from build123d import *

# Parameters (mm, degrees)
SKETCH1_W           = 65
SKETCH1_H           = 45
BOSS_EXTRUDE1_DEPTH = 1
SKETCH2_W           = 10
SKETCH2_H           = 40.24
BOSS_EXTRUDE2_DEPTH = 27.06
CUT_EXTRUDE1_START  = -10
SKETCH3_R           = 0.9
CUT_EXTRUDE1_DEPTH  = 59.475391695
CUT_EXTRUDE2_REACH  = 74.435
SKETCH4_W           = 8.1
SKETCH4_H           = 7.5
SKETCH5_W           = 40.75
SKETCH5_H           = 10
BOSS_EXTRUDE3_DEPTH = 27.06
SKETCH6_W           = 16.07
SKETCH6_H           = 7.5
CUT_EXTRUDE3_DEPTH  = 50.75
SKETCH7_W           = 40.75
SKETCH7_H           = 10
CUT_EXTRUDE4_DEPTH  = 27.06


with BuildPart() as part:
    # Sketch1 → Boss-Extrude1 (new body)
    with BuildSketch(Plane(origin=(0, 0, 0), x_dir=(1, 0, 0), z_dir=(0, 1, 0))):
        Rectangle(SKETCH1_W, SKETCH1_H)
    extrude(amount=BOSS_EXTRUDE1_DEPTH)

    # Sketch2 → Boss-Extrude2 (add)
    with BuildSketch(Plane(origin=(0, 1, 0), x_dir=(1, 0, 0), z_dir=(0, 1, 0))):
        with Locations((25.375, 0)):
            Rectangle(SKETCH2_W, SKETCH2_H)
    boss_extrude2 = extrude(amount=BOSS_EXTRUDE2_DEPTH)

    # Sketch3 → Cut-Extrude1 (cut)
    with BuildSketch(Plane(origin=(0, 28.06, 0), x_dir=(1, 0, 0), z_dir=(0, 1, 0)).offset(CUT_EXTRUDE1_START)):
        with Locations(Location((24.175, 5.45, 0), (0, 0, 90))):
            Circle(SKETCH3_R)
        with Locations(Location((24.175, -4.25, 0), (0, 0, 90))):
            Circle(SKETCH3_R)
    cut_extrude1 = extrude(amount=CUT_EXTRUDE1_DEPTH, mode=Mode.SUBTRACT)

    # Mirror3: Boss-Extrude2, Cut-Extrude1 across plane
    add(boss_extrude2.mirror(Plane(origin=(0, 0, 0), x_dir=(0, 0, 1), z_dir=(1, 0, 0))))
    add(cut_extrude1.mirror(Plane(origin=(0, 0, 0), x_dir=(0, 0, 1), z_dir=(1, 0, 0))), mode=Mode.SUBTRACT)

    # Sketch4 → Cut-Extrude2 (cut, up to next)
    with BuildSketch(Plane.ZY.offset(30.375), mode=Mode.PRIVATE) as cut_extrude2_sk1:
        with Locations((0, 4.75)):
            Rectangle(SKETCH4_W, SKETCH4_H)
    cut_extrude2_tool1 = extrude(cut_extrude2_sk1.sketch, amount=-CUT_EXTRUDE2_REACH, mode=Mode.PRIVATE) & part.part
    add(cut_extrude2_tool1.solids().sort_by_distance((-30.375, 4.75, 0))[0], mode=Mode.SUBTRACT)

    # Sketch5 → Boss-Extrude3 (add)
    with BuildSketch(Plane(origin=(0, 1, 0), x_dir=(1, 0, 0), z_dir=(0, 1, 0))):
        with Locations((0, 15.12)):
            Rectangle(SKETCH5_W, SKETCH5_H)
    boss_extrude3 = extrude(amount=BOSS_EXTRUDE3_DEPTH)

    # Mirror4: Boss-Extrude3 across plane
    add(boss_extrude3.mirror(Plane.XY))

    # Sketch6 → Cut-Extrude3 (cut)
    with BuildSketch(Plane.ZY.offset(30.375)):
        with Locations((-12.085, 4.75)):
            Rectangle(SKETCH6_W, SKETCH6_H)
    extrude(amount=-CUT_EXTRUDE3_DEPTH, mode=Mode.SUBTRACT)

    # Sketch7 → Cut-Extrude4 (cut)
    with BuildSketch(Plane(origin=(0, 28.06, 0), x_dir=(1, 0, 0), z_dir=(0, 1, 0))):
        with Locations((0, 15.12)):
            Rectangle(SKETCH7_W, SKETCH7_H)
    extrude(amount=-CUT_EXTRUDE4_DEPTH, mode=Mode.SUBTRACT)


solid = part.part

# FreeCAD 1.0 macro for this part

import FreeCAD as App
import Part
import Sketcher

doc = App.newDocument("Part")
body = doc.addObject("PartDesign::Body", "Body")

sketch1 = doc.addObject("Sketcher::SketchObject", "Sketch")
body.addObject(sketch1)
sketch1.AttachmentSupport = (doc.XZ_Plane, [""])
sketch1.MapMode = "FlatFace"
sketch1.addGeometry(Part.LineSegment(App.Vector(-32, -22, 0), App.Vector(-32, 22, 0)), False)
sketch1.addGeometry(Part.LineSegment(App.Vector(-32, 22, 0), App.Vector(32, 22, 0)), False)
sketch1.addGeometry(Part.LineSegment(App.Vector(32, 22, 0), App.Vector(32, -22, 0)), False)
sketch1.addGeometry(Part.LineSegment(App.Vector(32, -22, 0), App.Vector(-32, -22, 0)), False)
sketch1.addConstraint(Sketcher.Constraint("Coincident", 0, 2, 1, 1))
sketch1.addConstraint(Sketcher.Constraint("Coincident", 1, 2, 2, 1))
sketch1.addConstraint(Sketcher.Constraint("Coincident", 2, 2, 3, 1))
sketch1.addConstraint(Sketcher.Constraint("Coincident", 3, 2, 0, 1))
sketch1.addConstraint(Sketcher.Constraint("Vertical", 0))
sketch1.addConstraint(Sketcher.Constraint("Horizontal", 1))
sketch1.addConstraint(Sketcher.Constraint("Vertical", 2))
sketch1.addConstraint(Sketcher.Constraint("Horizontal", 3))
sketch1.addConstraint(Sketcher.Constraint("Symmetric", 0, 2, 2, 2, -1, 1))
sketch1.addConstraint(Sketcher.Constraint("DistanceX", 1, 1, 1, 2, 65.0))
sketch1.addConstraint(Sketcher.Constraint("DistanceY", 0, 1, 0, 2, 45.0))
pad1 = doc.addObject("PartDesign::Pad", "Pad")
body.addObject(pad1)
pad1.Profile = sketch1
pad1.Length = 1
pad1.Reversed = True

sketch2 = doc.addObject("Sketcher::SketchObject", "Sketch001")
body.addObject(sketch2)
sketch2.AttachmentSupport = (doc.XZ_Plane, [""])
sketch2.MapMode = "FlatFace"
sketch2.AttachmentOffset = App.Placement(App.Vector(0, 0, -1), App.Rotation())
sketch2.addGeometry(Part.LineSegment(App.Vector(20, -20, 0), App.Vector(20, 20, 0)), False)
sketch2.addGeometry(Part.LineSegment(App.Vector(20, 20, 0), App.Vector(30, 20, 0)), False)
sketch2.addGeometry(Part.LineSegment(App.Vector(30, 20, 0), App.Vector(30, -20, 0)), False)
sketch2.addGeometry(Part.LineSegment(App.Vector(30, -20, 0), App.Vector(20, -20, 0)), False)
sketch2.addConstraint(Sketcher.Constraint("Coincident", 0, 2, 1, 1))
sketch2.addConstraint(Sketcher.Constraint("Coincident", 1, 2, 2, 1))
sketch2.addConstraint(Sketcher.Constraint("Coincident", 2, 2, 3, 1))
sketch2.addConstraint(Sketcher.Constraint("Coincident", 3, 2, 0, 1))
sketch2.addConstraint(Sketcher.Constraint("Vertical", 0))
sketch2.addConstraint(Sketcher.Constraint("Horizontal", 1))
sketch2.addConstraint(Sketcher.Constraint("Vertical", 2))
sketch2.addConstraint(Sketcher.Constraint("Horizontal", 3))
sketch2.addConstraint(Sketcher.Constraint("DistanceX", 1, 1, 1, 2, 10.0))
sketch2.addConstraint(Sketcher.Constraint("DistanceY", 0, 1, 0, 2, 40.24))
sketch2.addConstraint(Sketcher.Constraint("DistanceY", -1, 1, 0, 2, 20.12))
sketch2.addConstraint(Sketcher.Constraint("DistanceX", -1, 1, 0, 2, 20.375))
pad2 = doc.addObject("PartDesign::Pad", "Pad001")
body.addObject(pad2)
pad2.Profile = sketch2
pad2.Length = 27.06
pad2.Reversed = True

sketch3 = doc.addObject("Sketcher::SketchObject", "Sketch002")
body.addObject(sketch3)
sketch3.AttachmentSupport = (doc.XZ_Plane, [""])
sketch3.MapMode = "FlatFace"
sketch3.AttachmentOffset = App.Placement(App.Vector(0, 0, -18.06), App.Rotation())
sketch3.addGeometry(Part.Circle(App.Vector(24.2, -5.5, 0), App.Vector(0, 0, 1), 0.9), False)
sketch3.addGeometry(Part.Circle(App.Vector(24.2, 4.2, 0), App.Vector(0, 0, 1), 0.9), False)
sketch3.addConstraint(Sketcher.Constraint("Equal", 0, 1))
sketch3.addConstraint(Sketcher.Constraint("Vertical", 0, 3, 1, 3))
sketch3.addConstraint(Sketcher.Constraint("Diameter", 0, 1.8))
sketch3.addConstraint(Sketcher.Constraint("DistanceY", 0, 3, 1, 3, 9.7))
sketch3.addConstraint(Sketcher.Constraint("DistanceY", 0, 3, -1, 1, 5.45))
sketch3.addConstraint(Sketcher.Constraint("DistanceX", -1, 1, 0, 3, 24.175))
pocket1 = doc.addObject("PartDesign::Pocket", "Pocket")
body.addObject(pocket1)
pocket1.Profile = sketch3
pocket1.Length = 59.475392
doc.recompute()

mirrored = doc.addObject("PartDesign::Mirrored", "Mirrored")
body.addObject(mirrored)
mirrored.Originals = [pad2, pocket1]
mirrored.MirrorPlane = (doc.YZ_Plane, [""])
body.Tip = mirrored

sketch4 = doc.addObject("Sketcher::SketchObject", "Sketch003")
body.addObject(sketch4)
sketch4.AttachmentSupport = (doc.YZ_Plane, [""])
sketch4.MapMode = "FlatFace"
sketch4.AttachmentOffset = App.Placement(App.Vector(0, 0, -30.375), App.Rotation())
sketch4.addGeometry(Part.LineSegment(App.Vector(8, -4, 0), App.Vector(1, -4, 0)), False)
sketch4.addGeometry(Part.LineSegment(App.Vector(1, -4, 0), App.Vector(1, 4, 0)), False)
sketch4.addGeometry(Part.LineSegment(App.Vector(1, 4, 0), App.Vector(8, 4, 0)), False)
sketch4.addGeometry(Part.LineSegment(App.Vector(8, 4, 0), App.Vector(8, -4, 0)), False)
sketch4.addConstraint(Sketcher.Constraint("Coincident", 0, 2, 1, 1))
sketch4.addConstraint(Sketcher.Constraint("Coincident", 1, 2, 2, 1))
sketch4.addConstraint(Sketcher.Constraint("Coincident", 2, 2, 3, 1))
sketch4.addConstraint(Sketcher.Constraint("Coincident", 3, 2, 0, 1))
sketch4.addConstraint(Sketcher.Constraint("Horizontal", 0))
sketch4.addConstraint(Sketcher.Constraint("Vertical", 1))
sketch4.addConstraint(Sketcher.Constraint("Horizontal", 2))
sketch4.addConstraint(Sketcher.Constraint("Vertical", 3))
sketch4.addConstraint(Sketcher.Constraint("DistanceX", 0, 2, 0, 1, 7.5))
sketch4.addConstraint(Sketcher.Constraint("DistanceY", 1, 1, 1, 2, 8.1))
sketch4.addConstraint(Sketcher.Constraint("DistanceX", -1, 1, 0, 2, 1.0))
sketch4.addConstraint(Sketcher.Constraint("DistanceY", 0, 2, -1, 1, 4.05))
pocket2 = doc.addObject("PartDesign::Pocket", "Pocket001")
body.addObject(pocket2)
pocket2.Profile = sketch4
pocket2.Type = "UpToFirst"
pocket2.Reversed = True

sketch5 = doc.addObject("Sketcher::SketchObject", "Sketch004")
body.addObject(sketch5)
sketch5.AttachmentSupport = (doc.XZ_Plane, [""])
sketch5.MapMode = "FlatFace"
sketch5.AttachmentOffset = App.Placement(App.Vector(0, 0, -1), App.Rotation())
sketch5.addGeometry(Part.LineSegment(App.Vector(-20, -20, 0), App.Vector(-20, -10, 0)), False)
sketch5.addGeometry(Part.LineSegment(App.Vector(-20, -10, 0), App.Vector(20, -10, 0)), False)
sketch5.addGeometry(Part.LineSegment(App.Vector(20, -10, 0), App.Vector(20, -20, 0)), False)
sketch5.addGeometry(Part.LineSegment(App.Vector(20, -20, 0), App.Vector(-20, -20, 0)), False)
sketch5.addConstraint(Sketcher.Constraint("Coincident", 0, 2, 1, 1))
sketch5.addConstraint(Sketcher.Constraint("Coincident", 1, 2, 2, 1))
sketch5.addConstraint(Sketcher.Constraint("Coincident", 2, 2, 3, 1))
sketch5.addConstraint(Sketcher.Constraint("Coincident", 3, 2, 0, 1))
sketch5.addConstraint(Sketcher.Constraint("Vertical", 0))
sketch5.addConstraint(Sketcher.Constraint("Horizontal", 1))
sketch5.addConstraint(Sketcher.Constraint("Vertical", 2))
sketch5.addConstraint(Sketcher.Constraint("Horizontal", 3))
sketch5.addConstraint(Sketcher.Constraint("DistanceY", 0, 1, 0, 2, 10.0))
sketch5.addConstraint(Sketcher.Constraint("DistanceX", 1, 1, 1, 2, 40.75))
sketch5.addConstraint(Sketcher.Constraint("DistanceY", 0, 2, -1, 1, 10.12))
sketch5.addConstraint(Sketcher.Constraint("DistanceX", 0, 2, -1, 1, 20.375))
pad3 = doc.addObject("PartDesign::Pad", "Pad002")
body.addObject(pad3)
pad3.Profile = sketch5
pad3.Length = 27.06
pad3.Reversed = True
doc.recompute()

mirrored2 = doc.addObject("PartDesign::Mirrored", "Mirrored001")
body.addObject(mirrored2)
mirrored2.Originals = [pad3]
mirrored2.MirrorPlane = (doc.XY_Plane, [""])
body.Tip = mirrored2

sketch6 = doc.addObject("Sketcher::SketchObject", "Sketch005")
body.addObject(sketch6)
sketch6.AttachmentSupport = (doc.YZ_Plane, [""])
sketch6.MapMode = "FlatFace"
sketch6.AttachmentOffset = App.Placement(App.Vector(0, 0, -30.375), App.Rotation())
sketch6.addGeometry(Part.LineSegment(App.Vector(8, -20, 0), App.Vector(1, -20, 0)), False)
sketch6.addGeometry(Part.LineSegment(App.Vector(1, -20, 0), App.Vector(1, -4, 0)), False)
sketch6.addGeometry(Part.LineSegment(App.Vector(1, -4, 0), App.Vector(8, -4, 0)), False)
sketch6.addGeometry(Part.LineSegment(App.Vector(8, -4, 0), App.Vector(8, -20, 0)), False)
sketch6.addConstraint(Sketcher.Constraint("Coincident", 0, 2, 1, 1))
sketch6.addConstraint(Sketcher.Constraint("Coincident", 1, 2, 2, 1))
sketch6.addConstraint(Sketcher.Constraint("Coincident", 2, 2, 3, 1))
sketch6.addConstraint(Sketcher.Constraint("Coincident", 3, 2, 0, 1))
sketch6.addConstraint(Sketcher.Constraint("Horizontal", 0))
sketch6.addConstraint(Sketcher.Constraint("Vertical", 1))
sketch6.addConstraint(Sketcher.Constraint("Horizontal", 2))
sketch6.addConstraint(Sketcher.Constraint("Vertical", 3))
sketch6.addConstraint(Sketcher.Constraint("DistanceX", 0, 2, 0, 1, 7.5))
sketch6.addConstraint(Sketcher.Constraint("DistanceX", -1, 1, 0, 2, 1.0))
sketch6.addConstraint(Sketcher.Constraint("DistanceY", 1, 1, 1, 2, 16.07))
sketch6.addConstraint(Sketcher.Constraint("DistanceY", 0, 2, -1, 1, 20.12))
pocket3 = doc.addObject("PartDesign::Pocket", "Pocket002")
body.addObject(pocket3)
pocket3.Profile = sketch6
pocket3.Length = 50.75
pocket3.Reversed = True

sketch7 = doc.addObject("Sketcher::SketchObject", "Sketch006")
body.addObject(sketch7)
sketch7.AttachmentSupport = (doc.XZ_Plane, [""])
sketch7.MapMode = "FlatFace"
sketch7.AttachmentOffset = App.Placement(App.Vector(0, 0, -28.06), App.Rotation())
sketch7.addGeometry(Part.LineSegment(App.Vector(-20, -20, 0), App.Vector(-20, -10, 0)), False)
sketch7.addGeometry(Part.LineSegment(App.Vector(-20, -10, 0), App.Vector(20, -10, 0)), False)
sketch7.addGeometry(Part.LineSegment(App.Vector(20, -10, 0), App.Vector(20, -20, 0)), False)
sketch7.addGeometry(Part.LineSegment(App.Vector(20, -20, 0), App.Vector(-20, -20, 0)), False)
sketch7.addConstraint(Sketcher.Constraint("Coincident", 0, 2, 1, 1))
sketch7.addConstraint(Sketcher.Constraint("Coincident", 1, 2, 2, 1))
sketch7.addConstraint(Sketcher.Constraint("Coincident", 2, 2, 3, 1))
sketch7.addConstraint(Sketcher.Constraint("Coincident", 3, 2, 0, 1))
sketch7.addConstraint(Sketcher.Constraint("Vertical", 0))
sketch7.addConstraint(Sketcher.Constraint("Horizontal", 1))
sketch7.addConstraint(Sketcher.Constraint("Vertical", 2))
sketch7.addConstraint(Sketcher.Constraint("Horizontal", 3))
sketch7.addConstraint(Sketcher.Constraint("DistanceY", 0, 1, 0, 2, 10.0))
sketch7.addConstraint(Sketcher.Constraint("DistanceX", 1, 1, 1, 2, 40.75))
sketch7.addConstraint(Sketcher.Constraint("DistanceY", 0, 2, -1, 1, 10.12))
sketch7.addConstraint(Sketcher.Constraint("DistanceX", 0, 2, -1, 1, 20.375))
pocket4 = doc.addObject("PartDesign::Pocket", "Pocket003")
body.addObject(pocket4)
pocket4.Profile = sketch7
pocket4.Length = 27.06
pocket4.Reversed = True

doc.recompute()
